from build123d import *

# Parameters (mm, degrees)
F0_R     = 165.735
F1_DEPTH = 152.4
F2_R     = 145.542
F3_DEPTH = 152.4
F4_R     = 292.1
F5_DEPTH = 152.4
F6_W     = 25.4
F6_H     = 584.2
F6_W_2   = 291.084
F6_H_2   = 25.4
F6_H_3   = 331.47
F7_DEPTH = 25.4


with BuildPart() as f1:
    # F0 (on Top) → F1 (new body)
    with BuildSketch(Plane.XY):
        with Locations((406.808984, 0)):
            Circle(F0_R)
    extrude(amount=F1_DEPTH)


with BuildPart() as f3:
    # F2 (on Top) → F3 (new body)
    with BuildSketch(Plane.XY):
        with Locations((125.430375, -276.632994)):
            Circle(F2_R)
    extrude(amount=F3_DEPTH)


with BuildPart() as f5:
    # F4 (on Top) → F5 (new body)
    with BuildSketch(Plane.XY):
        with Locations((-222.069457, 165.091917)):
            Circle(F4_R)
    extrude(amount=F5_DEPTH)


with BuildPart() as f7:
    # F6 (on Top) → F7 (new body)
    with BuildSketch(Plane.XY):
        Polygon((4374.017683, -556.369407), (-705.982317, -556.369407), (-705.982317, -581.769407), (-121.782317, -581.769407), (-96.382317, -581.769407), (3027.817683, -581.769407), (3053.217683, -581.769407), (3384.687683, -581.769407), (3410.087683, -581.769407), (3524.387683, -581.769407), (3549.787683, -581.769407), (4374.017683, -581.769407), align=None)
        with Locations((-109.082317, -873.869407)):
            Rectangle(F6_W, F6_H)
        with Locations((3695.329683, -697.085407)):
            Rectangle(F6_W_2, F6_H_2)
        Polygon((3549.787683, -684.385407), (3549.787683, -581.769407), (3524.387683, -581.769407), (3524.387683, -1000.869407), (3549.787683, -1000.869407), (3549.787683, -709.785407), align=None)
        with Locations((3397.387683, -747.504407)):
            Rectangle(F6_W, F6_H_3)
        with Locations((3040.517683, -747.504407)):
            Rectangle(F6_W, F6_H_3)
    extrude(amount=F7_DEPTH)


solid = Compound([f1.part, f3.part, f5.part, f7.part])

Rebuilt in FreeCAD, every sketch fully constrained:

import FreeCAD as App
import Part
import Sketcher

V = App.Vector
Q = App.Units.Quantity

doc = App.newDocument("Part")
params = doc.addObject("Spreadsheet::Sheet", "Params")
for row, (alias, value) in enumerate([
    ("sketch1_diameter", "13.05 in"),
    ("pad1_length", "6 in"),
    ("sketch2_diameter", "11.46 in"),
    ("pad2_length", "6 in"),
    ("sketch3_diameter", "23 in"),
    ("pad3_length", "6 in"),
    ("sketch4_width", "200 in"),
    ("sketch4_width2", "23 in"),
    ("sketch4_width3", "1 in"),
    ("sketch4_width4", "123 in"),
    ("sketch4_width5", "4.5 in"),
    ("pad4_length", "1 in"),
], start=1):
    params.set(f"A{row}", alias)
    params.set(f"B{row}", "=" + value)
    params.setAlias(f"B{row}", alias)

body = doc.addObject("PartDesign::Body", "Body")

sketch1 = body.newObject("Sketcher::SketchObject", "Sketch")
sketch1.AttachmentSupport = (doc.getObject("XY_Plane"), [""])
sketch1.MapMode = "FlatFace"
sketch1.addGeometry(Part.Circle(V(407, 0, 0), V(0, 0, 1), 166), False)
sketch1.addConstraint(Sketcher.Constraint("PointOnObject", 0, 3, -1))
sketch1.addConstraint(Sketcher.Constraint("Diameter", 0, Q("13.05 in")))
sketch1.addConstraint(Sketcher.Constraint("DistanceX", -1, 1, 0, 3, Q("406.808984 mm")))
sketch1.setExpression("Constraints[1]", "Params.sketch1_diameter")
pad1 = body.newObject("PartDesign::Pad", "Pad")
pad1.Profile = sketch1
pad1.setExpression("Length", "Params.pad1_length")
body2 = doc.addObject("PartDesign::Body", "Body001")

sketch2 = body2.newObject("Sketcher::SketchObject", "Sketch001")
sketch2.AttachmentSupport = (doc.getObject("XY_Plane001"), [""])
sketch2.MapMode = "FlatFace"
sketch2.addGeometry(Part.Circle(V(125, -277, 0), V(0, 0, 1), 146), False)
sketch2.addConstraint(Sketcher.Constraint("Diameter", 0, Q("11.46 in")))
sketch2.addConstraint(Sketcher.Constraint("DistanceX", -1, 1, 0, 3, Q("125.430375 mm")))
sketch2.addConstraint(Sketcher.Constraint("DistanceY", 0, 3, -1, 1, Q("276.632994 mm")))
sketch2.setExpression("Constraints[0]", "Params.sketch2_diameter")
pad2 = body2.newObject("PartDesign::Pad", "Pad001")
pad2.Profile = sketch2
pad2.setExpression("Length", "Params.pad2_length")
body3 = doc.addObject("PartDesign::Body", "Body002")

sketch3 = body3.newObject("Sketcher::SketchObject", "Sketch002")
sketch3.AttachmentSupport = (doc.getObject("XY_Plane002"), [""])
sketch3.MapMode = "FlatFace"
sketch3.addGeometry(Part.Circle(V(-222, 165, 0), V(0, 0, 1), 292), False)
sketch3.addConstraint(Sketcher.Constraint("Diameter", 0, Q("23 in")))
sketch3.addConstraint(Sketcher.Constraint("DistanceX", 0, 3, -1, 1, Q("222.069457 mm")))
sketch3.addConstraint(Sketcher.Constraint("DistanceY", -1, 1, 0, 3, Q("165.091917 mm")))
sketch3.setExpression("Constraints[0]", "Params.sketch3_diameter")
pad3 = body3.newObject("PartDesign::Pad", "Pad002")
pad3.Profile = sketch3
pad3.setExpression("Length", "Params.pad3_length")
body4 = doc.addObject("PartDesign::Body", "Body003")

sketch4 = body4.newObject("Sketcher::SketchObject", "Sketch003")
sketch4.AttachmentSupport = (doc.getObject("XY_Plane003"), [""])
sketch4.MapMode = "FlatFace"
sketch4.addGeometry(Part.LineSegment(V(4374, -556, 0), V(-706, -556, 0)), False)
sketch4.addGeometry(Part.LineSegment(V(-706, -556, 0), V(-706, -582, 0)), False)
sketch4.addGeometry(Part.LineSegment(V(-706, -582, 0), V(-122, -582, 0)), False)
sketch4.addGeometry(Part.LineSegment(V(-122, -582, 0), V(-122, -1166, 0)), False)
sketch4.addGeometry(Part.LineSegment(V(-122, -1166, 0), V(-96, -1166, 0)), False)
sketch4.addGeometry(Part.LineSegment(V(-96, -1166, 0), V(-96, -582, 0)), False)
sketch4.addGeometry(Part.LineSegment(V(-96, -582, 0), V(3028, -582, 0)), False)
sketch4.addGeometry(Part.LineSegment(V(3028, -582, 0), V(3028, -913, 0)), False)
sketch4.addGeometry(Part.LineSegment(V(3028, -913, 0), V(3053, -913, 0)), False)
sketch4.addGeometry(Part.LineSegment(V(3053, -913, 0), V(3053, -582, 0)), False)
sketch4.addGeometry(Part.LineSegment(V(3053, -582, 0), V(3385, -582, 0)), False)
sketch4.addGeometry(Part.LineSegment(V(3385, -582, 0), V(3385, -913, 0)), False)
sketch4.addGeometry(Part.LineSegment(V(3385, -913, 0), V(3410, -913, 0)), False)
sketch4.addGeometry(Part.LineSegment(V(3410, -913, 0), V(3410, -582, 0)), False)
sketch4.addGeometry(Part.LineSegment(V(3410, -582, 0), V(3524, -582, 0)), False)
sketch4.addGeometry(Part.LineSegment(V(3524, -582, 0), V(3524, -1001, 0)), False)
sketch4.addGeometry(Part.LineSegment(V(3524, -1001, 0), V(3550, -1001, 0)), False)
sketch4.addGeometry(Part.LineSegment(V(3550, -1001, 0), V(3550, -710, 0)), False)
sketch4.addGeometry(Part.LineSegment(V(3550, -710, 0), V(3841, -710, 0)), False)
sketch4.addGeometry(Part.LineSegment(V(3841, -710, 0), V(3841, -684, 0)), False)
sketch4.addGeometry(Part.LineSegment(V(3841, -684, 0), V(3550, -684, 0)), False)
sketch4.addGeometry(Part.LineSegment(V(3550, -684, 0), V(3550, -582, 0)), False)
sketch4.addGeometry(Part.LineSegment(V(3550, -582, 0), V(4374, -582, 0)), False)
sketch4.addGeometry(Part.LineSegment(V(4374, -582, 0), V(4374, -556, 0)), False)
sketch4.addConstraint(Sketcher.Constraint("Coincident", 0, 2, 1, 1))
sketch4.addConstraint(Sketcher.Constraint("Coincident", 1, 2, 2, 1))
sketch4.addConstraint(Sketcher.Constraint("Coincident", 2, 2, 3, 1))
sketch4.addConstraint(Sketcher.Constraint("Coincident", 3, 2, 4, 1))
sketch4.addConstraint(Sketcher.Constraint("Coincident", 4, 2, 5, 1))
sketch4.addConstraint(Sketcher.Constraint("Coincident", 5, 2, 6, 1))
sketch4.addConstraint(Sketcher.Constraint("Coincident", 6, 2, 7, 1))
sketch4.addConstraint(Sketcher.Constraint("Coincident", 7, 2, 8, 1))
sketch4.addConstraint(Sketcher.Constraint("Coincident", 8, 2, 9, 1))
sketch4.addConstraint(Sketcher.Constraint("Coincident", 9, 2, 10, 1))
sketch4.addConstraint(Sketcher.Constraint("Coincident", 10, 2, 11, 1))
sketch4.addConstraint(Sketcher.Constraint("Coincident", 11, 2, 12, 1))
sketch4.addConstraint(Sketcher.Constraint("Coincident", 12, 2, 13, 1))
sketch4.addConstraint(Sketcher.Constraint("Coincident", 13, 2, 14, 1))
sketch4.addConstraint(Sketcher.Constraint("Coincident", 14, 2, 15, 1))
sketch4.addConstraint(Sketcher.Constraint("Coincident", 15, 2, 16, 1))
sketch4.addConstraint(Sketcher.Constraint("Coincident", 16, 2, 17, 1))
sketch4.addConstraint(Sketcher.Constraint("Coincident", 17, 2, 18, 1))
sketch4.addConstraint(Sketcher.Constraint("Coincident", 18, 2, 19, 1))
sketch4.addConstraint(Sketcher.Constraint("Coincident", 19, 2, 20, 1))
sketch4.addConstraint(Sketcher.Constraint("Coincident", 20, 2, 21, 1))
sketch4.addConstraint(Sketcher.Constraint("Coincident", 21, 2, 22, 1))
sketch4.addConstraint(Sketcher.Constraint("Coincident", 22, 2, 23, 1))
sketch4.addConstraint(Sketcher.Constraint("Coincident", 23, 2, 0, 1))
sketch4.addConstraint(Sketcher.Constraint("Horizontal", 0))
sketch4.addConstraint(Sketcher.Constraint("Vertical", 1))
sketch4.addConstraint(Sketcher.Constraint("Horizontal", 2))
sketch4.addConstraint(Sketcher.Constraint("Vertical", 3))
sketch4.addConstraint(Sketcher.Constraint("Horizontal", 4))
sketch4.addConstraint(Sketcher.Constraint("Vertical", 5))
sketch4.addConstraint(Sketcher.Constraint("Horizontal", 6))
sketch4.addConstraint(Sketcher.Constraint("Vertical", 7))
sketch4.addConstraint(Sketcher.Constraint("Horizontal", 8))
sketch4.addConstraint(Sketcher.Constraint("Vertical", 9))
sketch4.addConstraint(Sketcher.Constraint("Horizontal", 10))
sketch4.addConstraint(Sketcher.Constraint("Vertical", 11))
sketch4.addConstraint(Sketcher.Constraint("Horizontal", 12))
sketch4.addConstraint(Sketcher.Constraint("Vertical", 13))
sketch4.addConstraint(Sketcher.Constraint("Horizontal", 14))
sketch4.addConstraint(Sketcher.Constraint("Vertical", 15))
sketch4.addConstraint(Sketcher.Constraint("Horizontal", 16))
sketch4.addConstraint(Sketcher.Constraint("Vertical", 17))
sketch4.addConstraint(Sketcher.Constraint("Horizontal", 18))
sketch4.addConstraint(Sketcher.Constraint("Vertical", 19))
sketch4.addConstraint(Sketcher.Constraint("Horizontal", 20))
sketch4.addConstraint(Sketcher.Constraint("Vertical", 21))
sketch4.addConstraint(Sketcher.Constraint("Horizontal", 22))
sketch4.addConstraint(Sketcher.Constraint("Vertical", 23))
sketch4.addConstraint(Sketcher.Constraint("Horizontal", 2, 2, 5, 2))
sketch4.addConstraint(Sketcher.Constraint("Horizontal", 6, 2, 9, 2))
sketch4.addConstraint(Sketcher.Constraint("Horizontal", 8, 2, 11, 2))
sketch4.addConstraint(Sketcher.Constraint("Horizontal", 10, 2, 13, 2))
sketch4.addConstraint(Sketcher.Constraint("Horizontal", 14, 2, 21, 2))
sketch4.addConstraint(Sketcher.Constraint("Vertical", 17, 2, 20, 2))
sketch4.addConstraint(Sketcher.Constraint("Equal", 4, 8))
sketch4.addConstraint(Sketcher.Constraint("Equal", 8, 12))
sketch4.addConstraint(Sketcher.Constraint("Equal", 12, 16))
sketch4.addConstraint(Sketcher.Constraint("Equal", 16, 1))
sketch4.addConstraint(Sketcher.Constraint("Equal", 2, 3))
sketch4.addConstraint(Sketcher.Constraint("Equal", 10, 7))
sketch4.addConstraint(Sketcher.Constraint("Equal", 20, 17))
sketch4.addConstraint(Sketcher.Constraint("Equal", 1, 19))
sketch4.addConstraint(Sketcher.Constraint("DistanceX", 0, 2, 0, 1, Q("200 in")))
sketch4.addConstraint(Sketcher.Constraint("DistanceX", 2, 1, 2, 2, Q("23 in")))
sketch4.addConstraint(Sketcher.Constraint("DistanceX", 4, 1, 4, 2, Q("1 in")))
sketch4.addConstraint(Sketcher.Constraint("DistanceX", 6, 1, 6, 2, Q("123 in")))
sketch4.addConstraint(Sketcher.Constraint("DistanceX", 14, 1, 14, 2, Q("4.5 in")))
sketch4.addConstraint(Sketcher.Constraint("DistanceY", 15, 2, 15, 1, Q("16.5 in")))
sketch4.addConstraint(Sketcher.Constraint("DistanceX", 10, 1, 10, 2, Q("13.05 in")))
sketch4.addConstraint(Sketcher.Constraint("DistanceX", 18, 1, 18, 2, Q("11.46 in")))
sketch4.addConstraint(Sketcher.Constraint("DistanceX", 0, 2, -1, 1, Q("705.982317 mm")))
sketch4.addConstraint(Sketcher.Constraint("DistanceY", 0, 2, -1, 1, Q("556.369407 mm")))
sketch4.setExpression("Constraints[62]", "Params.sketch4_width")
sketch4.setExpression("Constraints[63]", "Params.sketch4_width2")
sketch4.setExpression("Constraints[64]", "Params.sketch4_width3")
sketch4.setExpression("Constraints[65]", "Params.sketch4_width4")
sketch4.setExpression("Constraints[66]", "Params.sketch4_width5")
pad4 = body4.newObject("PartDesign::Pad", "Pad003")
pad4.Profile = sketch4
pad4.setExpression("Length", "Params.pad4_length")

doc.recompute()
